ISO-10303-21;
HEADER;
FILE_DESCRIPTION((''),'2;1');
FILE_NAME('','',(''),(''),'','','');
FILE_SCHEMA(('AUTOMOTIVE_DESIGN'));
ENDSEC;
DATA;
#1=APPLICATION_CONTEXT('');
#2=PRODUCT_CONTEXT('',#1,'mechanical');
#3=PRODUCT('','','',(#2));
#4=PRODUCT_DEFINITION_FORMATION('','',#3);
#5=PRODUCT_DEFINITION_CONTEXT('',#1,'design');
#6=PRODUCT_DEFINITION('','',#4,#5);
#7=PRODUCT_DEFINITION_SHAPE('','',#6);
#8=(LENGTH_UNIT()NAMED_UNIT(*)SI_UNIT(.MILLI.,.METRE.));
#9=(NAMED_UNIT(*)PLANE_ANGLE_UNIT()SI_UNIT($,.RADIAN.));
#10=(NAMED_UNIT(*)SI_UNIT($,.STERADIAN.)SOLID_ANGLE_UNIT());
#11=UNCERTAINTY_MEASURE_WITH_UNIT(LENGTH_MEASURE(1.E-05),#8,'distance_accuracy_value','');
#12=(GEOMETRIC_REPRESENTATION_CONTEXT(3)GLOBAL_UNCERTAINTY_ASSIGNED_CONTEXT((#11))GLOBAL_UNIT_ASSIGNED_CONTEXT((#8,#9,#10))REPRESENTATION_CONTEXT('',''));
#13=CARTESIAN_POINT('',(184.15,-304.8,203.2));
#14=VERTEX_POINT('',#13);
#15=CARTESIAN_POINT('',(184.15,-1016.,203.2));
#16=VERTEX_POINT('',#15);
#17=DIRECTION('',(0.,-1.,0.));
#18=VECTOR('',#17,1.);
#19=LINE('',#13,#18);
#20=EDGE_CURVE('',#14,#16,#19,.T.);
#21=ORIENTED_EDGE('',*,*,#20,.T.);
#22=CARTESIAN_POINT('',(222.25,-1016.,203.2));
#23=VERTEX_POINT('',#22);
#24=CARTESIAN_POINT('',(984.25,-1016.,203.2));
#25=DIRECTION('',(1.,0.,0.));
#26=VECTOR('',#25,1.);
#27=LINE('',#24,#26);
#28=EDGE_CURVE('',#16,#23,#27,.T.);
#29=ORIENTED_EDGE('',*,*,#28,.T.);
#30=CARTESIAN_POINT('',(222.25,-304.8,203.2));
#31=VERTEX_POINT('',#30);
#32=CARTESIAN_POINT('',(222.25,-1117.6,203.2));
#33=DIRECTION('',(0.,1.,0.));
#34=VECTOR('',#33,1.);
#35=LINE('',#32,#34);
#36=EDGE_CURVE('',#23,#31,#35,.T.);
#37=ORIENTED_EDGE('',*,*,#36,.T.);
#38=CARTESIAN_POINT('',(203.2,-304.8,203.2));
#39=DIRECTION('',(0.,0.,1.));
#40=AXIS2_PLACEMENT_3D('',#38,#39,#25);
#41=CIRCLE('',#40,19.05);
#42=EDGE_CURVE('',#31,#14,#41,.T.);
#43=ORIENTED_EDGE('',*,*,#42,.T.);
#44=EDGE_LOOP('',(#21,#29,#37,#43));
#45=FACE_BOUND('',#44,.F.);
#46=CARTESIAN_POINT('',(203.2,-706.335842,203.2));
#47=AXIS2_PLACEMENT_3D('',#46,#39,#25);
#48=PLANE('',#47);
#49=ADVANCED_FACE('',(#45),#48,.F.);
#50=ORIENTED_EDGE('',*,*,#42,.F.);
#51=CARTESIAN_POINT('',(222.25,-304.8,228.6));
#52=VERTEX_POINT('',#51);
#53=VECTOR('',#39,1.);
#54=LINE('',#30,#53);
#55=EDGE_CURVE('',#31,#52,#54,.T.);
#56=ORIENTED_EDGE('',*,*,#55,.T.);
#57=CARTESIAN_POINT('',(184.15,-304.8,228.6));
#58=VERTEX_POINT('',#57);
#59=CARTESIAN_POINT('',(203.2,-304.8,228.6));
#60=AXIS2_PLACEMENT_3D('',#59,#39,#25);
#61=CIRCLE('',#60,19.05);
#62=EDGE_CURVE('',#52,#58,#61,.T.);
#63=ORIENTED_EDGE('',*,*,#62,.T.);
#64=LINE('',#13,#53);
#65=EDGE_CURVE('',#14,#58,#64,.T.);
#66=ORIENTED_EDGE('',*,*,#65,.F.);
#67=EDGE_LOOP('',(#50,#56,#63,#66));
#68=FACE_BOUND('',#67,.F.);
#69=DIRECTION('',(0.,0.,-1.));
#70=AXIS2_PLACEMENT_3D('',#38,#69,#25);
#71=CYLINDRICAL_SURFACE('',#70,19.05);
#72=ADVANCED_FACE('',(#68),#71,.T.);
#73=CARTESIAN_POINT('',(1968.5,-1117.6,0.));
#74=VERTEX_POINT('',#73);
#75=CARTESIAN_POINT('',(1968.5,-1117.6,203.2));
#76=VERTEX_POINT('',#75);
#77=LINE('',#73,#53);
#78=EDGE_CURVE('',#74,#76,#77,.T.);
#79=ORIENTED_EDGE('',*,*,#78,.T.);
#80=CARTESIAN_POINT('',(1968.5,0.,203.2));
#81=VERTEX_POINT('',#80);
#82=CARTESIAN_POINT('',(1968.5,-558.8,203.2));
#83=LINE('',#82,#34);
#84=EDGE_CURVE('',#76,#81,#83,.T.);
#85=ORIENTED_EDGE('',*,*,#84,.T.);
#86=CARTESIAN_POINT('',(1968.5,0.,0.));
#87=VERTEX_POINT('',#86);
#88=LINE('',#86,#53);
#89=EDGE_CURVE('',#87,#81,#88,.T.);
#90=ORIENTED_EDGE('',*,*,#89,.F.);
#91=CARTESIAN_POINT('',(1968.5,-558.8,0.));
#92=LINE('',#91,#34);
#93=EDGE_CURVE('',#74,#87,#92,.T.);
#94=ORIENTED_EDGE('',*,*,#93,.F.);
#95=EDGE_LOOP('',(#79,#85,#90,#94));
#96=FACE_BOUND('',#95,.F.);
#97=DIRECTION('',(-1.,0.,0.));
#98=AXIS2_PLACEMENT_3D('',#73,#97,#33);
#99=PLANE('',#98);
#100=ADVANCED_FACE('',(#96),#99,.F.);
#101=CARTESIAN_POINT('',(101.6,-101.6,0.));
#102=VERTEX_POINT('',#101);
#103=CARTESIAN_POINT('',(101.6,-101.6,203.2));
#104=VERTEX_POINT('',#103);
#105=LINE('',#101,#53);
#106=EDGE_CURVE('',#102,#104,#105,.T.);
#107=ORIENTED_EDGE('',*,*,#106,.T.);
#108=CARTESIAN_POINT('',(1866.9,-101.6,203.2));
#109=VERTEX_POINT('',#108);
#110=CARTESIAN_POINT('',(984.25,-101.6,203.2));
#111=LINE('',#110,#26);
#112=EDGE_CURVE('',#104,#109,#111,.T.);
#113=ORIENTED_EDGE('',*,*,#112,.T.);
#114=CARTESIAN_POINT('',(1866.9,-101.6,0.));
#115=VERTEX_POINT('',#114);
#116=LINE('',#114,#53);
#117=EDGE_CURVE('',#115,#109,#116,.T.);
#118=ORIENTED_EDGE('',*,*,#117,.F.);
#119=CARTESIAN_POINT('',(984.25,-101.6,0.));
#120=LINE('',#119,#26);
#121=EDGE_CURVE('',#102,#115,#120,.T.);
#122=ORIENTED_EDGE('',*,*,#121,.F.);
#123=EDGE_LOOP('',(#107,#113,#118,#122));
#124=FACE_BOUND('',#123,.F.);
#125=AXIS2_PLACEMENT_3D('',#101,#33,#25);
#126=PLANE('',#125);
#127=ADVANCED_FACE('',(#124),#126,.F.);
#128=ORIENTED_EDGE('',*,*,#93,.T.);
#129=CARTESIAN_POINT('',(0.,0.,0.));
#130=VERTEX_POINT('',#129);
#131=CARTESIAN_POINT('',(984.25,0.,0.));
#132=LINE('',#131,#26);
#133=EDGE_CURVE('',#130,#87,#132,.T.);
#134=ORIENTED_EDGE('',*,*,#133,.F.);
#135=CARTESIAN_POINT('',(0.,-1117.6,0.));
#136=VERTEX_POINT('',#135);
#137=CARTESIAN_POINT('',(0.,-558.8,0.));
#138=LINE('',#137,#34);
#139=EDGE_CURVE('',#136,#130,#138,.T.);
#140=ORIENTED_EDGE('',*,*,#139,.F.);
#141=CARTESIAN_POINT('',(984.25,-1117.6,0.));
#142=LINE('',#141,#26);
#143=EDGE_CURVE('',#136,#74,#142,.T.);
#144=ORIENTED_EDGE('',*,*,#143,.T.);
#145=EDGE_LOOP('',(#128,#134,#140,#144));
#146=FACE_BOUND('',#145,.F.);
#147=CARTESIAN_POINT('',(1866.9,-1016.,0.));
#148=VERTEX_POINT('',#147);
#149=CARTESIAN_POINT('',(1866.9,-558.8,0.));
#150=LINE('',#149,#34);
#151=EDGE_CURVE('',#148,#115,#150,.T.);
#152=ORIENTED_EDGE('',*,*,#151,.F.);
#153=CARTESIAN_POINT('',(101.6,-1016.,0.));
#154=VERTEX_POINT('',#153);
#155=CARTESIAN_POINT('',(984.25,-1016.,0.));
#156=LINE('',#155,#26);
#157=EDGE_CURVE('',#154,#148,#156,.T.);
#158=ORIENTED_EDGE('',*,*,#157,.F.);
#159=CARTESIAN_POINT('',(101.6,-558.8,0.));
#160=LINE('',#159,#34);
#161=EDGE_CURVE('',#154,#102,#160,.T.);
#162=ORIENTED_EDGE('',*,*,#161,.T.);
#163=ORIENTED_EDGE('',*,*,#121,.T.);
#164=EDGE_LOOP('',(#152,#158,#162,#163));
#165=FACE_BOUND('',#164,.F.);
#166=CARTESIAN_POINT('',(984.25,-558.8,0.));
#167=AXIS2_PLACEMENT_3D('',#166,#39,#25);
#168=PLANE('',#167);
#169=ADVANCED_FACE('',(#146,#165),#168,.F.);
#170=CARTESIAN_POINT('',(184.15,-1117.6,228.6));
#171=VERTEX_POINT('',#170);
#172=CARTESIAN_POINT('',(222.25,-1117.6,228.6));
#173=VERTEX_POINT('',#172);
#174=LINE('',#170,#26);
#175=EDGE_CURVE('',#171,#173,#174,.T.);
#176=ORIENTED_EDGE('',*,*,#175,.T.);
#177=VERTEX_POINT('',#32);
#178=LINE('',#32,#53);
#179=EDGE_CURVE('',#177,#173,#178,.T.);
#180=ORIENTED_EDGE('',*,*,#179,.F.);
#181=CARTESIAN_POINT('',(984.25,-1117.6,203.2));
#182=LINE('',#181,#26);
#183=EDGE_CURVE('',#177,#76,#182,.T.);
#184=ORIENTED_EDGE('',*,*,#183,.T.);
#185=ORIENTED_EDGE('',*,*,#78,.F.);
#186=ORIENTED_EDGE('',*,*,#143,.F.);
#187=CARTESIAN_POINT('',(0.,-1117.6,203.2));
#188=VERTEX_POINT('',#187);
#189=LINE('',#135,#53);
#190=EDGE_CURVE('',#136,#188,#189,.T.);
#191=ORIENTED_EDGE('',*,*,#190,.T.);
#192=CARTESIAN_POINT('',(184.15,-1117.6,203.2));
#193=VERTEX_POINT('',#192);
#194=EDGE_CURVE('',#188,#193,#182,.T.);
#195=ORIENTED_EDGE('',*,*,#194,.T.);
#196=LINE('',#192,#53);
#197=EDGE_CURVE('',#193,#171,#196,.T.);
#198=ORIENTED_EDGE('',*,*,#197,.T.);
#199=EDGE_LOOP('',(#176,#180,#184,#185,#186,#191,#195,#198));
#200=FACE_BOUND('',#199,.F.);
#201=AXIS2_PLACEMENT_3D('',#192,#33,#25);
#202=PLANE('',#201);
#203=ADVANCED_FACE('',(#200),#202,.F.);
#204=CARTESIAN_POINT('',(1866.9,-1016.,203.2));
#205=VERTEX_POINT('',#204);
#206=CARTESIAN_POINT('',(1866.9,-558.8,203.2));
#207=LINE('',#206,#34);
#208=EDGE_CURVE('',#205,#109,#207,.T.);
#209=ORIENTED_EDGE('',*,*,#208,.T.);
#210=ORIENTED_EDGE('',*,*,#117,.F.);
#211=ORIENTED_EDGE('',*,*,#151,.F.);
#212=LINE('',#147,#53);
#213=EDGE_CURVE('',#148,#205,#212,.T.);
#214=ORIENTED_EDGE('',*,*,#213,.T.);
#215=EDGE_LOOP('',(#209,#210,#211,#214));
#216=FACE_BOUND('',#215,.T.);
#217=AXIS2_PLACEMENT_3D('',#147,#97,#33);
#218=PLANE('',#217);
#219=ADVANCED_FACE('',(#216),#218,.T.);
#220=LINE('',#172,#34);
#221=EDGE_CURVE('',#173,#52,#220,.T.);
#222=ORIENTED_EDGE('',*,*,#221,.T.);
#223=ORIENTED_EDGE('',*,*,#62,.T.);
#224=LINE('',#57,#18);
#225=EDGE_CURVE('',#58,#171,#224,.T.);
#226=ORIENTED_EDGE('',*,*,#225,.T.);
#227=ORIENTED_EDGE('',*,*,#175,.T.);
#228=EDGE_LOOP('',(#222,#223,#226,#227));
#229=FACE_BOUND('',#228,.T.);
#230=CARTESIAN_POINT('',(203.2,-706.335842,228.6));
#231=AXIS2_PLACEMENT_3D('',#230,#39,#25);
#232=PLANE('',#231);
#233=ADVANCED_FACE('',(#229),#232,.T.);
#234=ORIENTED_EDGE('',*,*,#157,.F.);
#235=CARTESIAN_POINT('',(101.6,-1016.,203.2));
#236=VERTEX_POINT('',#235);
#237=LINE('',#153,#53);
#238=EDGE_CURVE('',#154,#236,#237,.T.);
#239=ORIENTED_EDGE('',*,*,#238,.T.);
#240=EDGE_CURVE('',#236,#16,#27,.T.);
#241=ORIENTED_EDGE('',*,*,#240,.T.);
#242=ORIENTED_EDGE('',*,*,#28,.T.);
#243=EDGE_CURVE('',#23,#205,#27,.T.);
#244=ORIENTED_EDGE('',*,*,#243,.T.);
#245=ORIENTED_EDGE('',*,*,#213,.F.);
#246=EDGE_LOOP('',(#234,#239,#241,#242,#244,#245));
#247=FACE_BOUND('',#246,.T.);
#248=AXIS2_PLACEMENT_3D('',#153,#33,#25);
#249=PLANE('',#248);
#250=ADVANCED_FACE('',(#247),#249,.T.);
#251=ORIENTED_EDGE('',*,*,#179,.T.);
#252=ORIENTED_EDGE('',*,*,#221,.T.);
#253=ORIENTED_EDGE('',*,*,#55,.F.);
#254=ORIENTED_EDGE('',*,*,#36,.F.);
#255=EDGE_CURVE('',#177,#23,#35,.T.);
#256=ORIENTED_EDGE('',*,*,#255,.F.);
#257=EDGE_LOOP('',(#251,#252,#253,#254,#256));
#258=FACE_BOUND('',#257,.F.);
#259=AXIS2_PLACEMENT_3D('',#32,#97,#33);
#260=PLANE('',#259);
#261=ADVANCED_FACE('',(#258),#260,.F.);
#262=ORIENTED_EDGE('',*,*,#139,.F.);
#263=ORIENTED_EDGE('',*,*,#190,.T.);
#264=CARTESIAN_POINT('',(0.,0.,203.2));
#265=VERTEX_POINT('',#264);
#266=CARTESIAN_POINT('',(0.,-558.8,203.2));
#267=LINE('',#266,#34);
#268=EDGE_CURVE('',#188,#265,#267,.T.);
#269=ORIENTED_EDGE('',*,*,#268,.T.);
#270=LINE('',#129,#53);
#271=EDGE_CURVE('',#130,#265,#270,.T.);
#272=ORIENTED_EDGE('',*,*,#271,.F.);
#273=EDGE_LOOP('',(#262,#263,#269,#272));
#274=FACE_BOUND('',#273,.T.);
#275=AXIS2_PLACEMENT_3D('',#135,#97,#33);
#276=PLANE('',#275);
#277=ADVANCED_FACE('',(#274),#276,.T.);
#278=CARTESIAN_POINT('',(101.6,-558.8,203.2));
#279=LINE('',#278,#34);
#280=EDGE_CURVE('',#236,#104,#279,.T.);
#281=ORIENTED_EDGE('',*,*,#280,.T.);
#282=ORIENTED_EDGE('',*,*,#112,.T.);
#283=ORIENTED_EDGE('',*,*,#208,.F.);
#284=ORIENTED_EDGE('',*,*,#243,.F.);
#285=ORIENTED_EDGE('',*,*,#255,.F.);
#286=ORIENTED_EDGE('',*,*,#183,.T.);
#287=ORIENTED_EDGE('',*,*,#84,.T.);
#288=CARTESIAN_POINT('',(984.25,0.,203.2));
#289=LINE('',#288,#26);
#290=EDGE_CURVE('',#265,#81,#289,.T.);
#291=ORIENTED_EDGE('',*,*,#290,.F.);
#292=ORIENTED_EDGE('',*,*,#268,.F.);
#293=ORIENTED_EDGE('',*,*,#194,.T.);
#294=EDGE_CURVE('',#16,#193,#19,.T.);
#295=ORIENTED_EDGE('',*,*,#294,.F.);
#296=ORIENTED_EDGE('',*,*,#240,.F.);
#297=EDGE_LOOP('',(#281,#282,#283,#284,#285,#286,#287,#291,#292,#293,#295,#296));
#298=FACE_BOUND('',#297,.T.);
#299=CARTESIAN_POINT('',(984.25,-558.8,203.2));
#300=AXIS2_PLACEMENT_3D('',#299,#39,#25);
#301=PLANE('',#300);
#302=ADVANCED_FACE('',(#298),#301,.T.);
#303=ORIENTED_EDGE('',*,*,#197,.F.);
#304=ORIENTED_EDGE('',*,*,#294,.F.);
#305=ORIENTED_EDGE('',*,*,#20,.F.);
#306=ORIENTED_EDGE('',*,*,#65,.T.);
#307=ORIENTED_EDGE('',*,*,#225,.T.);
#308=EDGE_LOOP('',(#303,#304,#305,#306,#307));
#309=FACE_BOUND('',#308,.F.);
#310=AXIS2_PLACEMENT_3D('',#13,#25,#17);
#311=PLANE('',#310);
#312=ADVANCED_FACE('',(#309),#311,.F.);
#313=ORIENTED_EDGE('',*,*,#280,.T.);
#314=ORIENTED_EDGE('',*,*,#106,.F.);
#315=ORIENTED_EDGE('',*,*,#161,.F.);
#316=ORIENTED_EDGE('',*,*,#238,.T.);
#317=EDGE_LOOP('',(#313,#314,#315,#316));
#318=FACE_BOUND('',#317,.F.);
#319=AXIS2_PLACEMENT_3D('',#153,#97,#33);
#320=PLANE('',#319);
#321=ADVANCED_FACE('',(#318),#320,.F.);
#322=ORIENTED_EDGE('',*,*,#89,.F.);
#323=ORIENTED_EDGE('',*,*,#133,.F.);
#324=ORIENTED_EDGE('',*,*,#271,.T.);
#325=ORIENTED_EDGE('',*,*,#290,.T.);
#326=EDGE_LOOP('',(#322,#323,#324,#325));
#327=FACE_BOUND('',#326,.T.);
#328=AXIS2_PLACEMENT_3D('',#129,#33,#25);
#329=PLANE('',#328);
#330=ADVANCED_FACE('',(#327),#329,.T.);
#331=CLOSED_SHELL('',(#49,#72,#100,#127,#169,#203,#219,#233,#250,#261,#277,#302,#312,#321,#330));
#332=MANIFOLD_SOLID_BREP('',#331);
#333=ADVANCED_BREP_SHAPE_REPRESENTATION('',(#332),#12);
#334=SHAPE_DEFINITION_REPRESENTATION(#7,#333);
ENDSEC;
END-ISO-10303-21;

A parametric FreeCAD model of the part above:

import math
import FreeCAD as App
import Part
import Sketcher
from FreeCAD import Vector
Q = App.Units.Quantity


def add_polygon(sketch, points):
    """Adds a closed chain of lines whose ends are joined by coincident constraints."""
    first, n = sketch.GeometryCount, len(points)
    for a, b in zip(points, points[1:] + points[:1]):
        sketch.addGeometry(Part.LineSegment(App.Vector(*a, 0), App.Vector(*b, 0)), False)
    for i in range(n):
        sketch.addConstraint(Sketcher.Constraint("Coincident", first + i, 2, first + (i + 1) % n, 1))

doc = App.newDocument("Part")
body = doc.addObject("PartDesign::Body", "Body")

# Sketch on XY plane
sketch1 = body.newObject("Sketcher::SketchObject", "Sketch")
sketch1.AttachmentSupport = (doc.getObject("XY_Plane"), [""])
sketch1.MapMode = "FlatFace"
add_polygon(sketch1, [(0, 0), (0, -1117.6), (1968.5, -1117.6), (1968.5, 0)])  # lines 0-3
add_polygon(sketch1, [(1866.9, -1016), (101.6, -1016), (101.6, -101.6), (1866.9, -101.6)])  # lines 4-7
sketch1.addConstraint(Sketcher.Constraint("Vertical", 0))
sketch1.addConstraint(Sketcher.Constraint("Horizontal", 1))
sketch1.addConstraint(Sketcher.Constraint("Vertical", 2))
sketch1.addConstraint(Sketcher.Constraint("Horizontal", 3))
sketch1.addConstraint(Sketcher.Constraint("Horizontal", 4))
sketch1.addConstraint(Sketcher.Constraint("Vertical", 5))
sketch1.addConstraint(Sketcher.Constraint("Horizontal", 6))
sketch1.addConstraint(Sketcher.Constraint("Vertical", 7))
sketch1.addConstraint(Sketcher.Constraint("Coincident", 3, 2, -1, 1))
sketch1.addConstraint(Sketcher.Constraint("DistanceY", 0, 2, 0, 1, Q("44 in")))
sketch1.addConstraint(Sketcher.Constraint("DistanceY", 5, 1, 5, 2, Q("36 in")))
sketch1.addConstraint(Sketcher.Constraint("DistanceX", 1, 1, 1, 2, Q("77.5 in")))
sketch1.addConstraint(Sketcher.Constraint("DistanceX", 4, 2, 4, 1, Q("69.5 in")))
sketch1.addConstraint(Sketcher.Constraint("DistanceX", -1, 1, 4, 2, Q("4 in")))
sketch1.addConstraint(Sketcher.Constraint("DistanceY", 4, 2, -1, 1, Q("40 in")))
pad1 = body.newObject("PartDesign::Pad", "Pad")
pad1.Profile = sketch1
pad1.Length = Q("8 in")

# Sketch on XY plane
sketch2 = body.newObject("Sketcher::SketchObject", "Sketch001")
sketch2.AttachmentSupport = (doc.getObject("XY_Plane"), [""])
sketch2.MapMode = "FlatFace"
sketch2.AttachmentOffset = App.Placement(Vector(0, 0, 8 * 25.4), App.Rotation())
sketch2.addGeometry(Part.ArcOfCircle(Part.Circle(Vector(203.2, -304.8, 0), Vector(0, 0, 1), 19.05), math.radians(0), math.radians(180)), False)
sketch2.addGeometry(Part.LineSegment(Vector(184.15, -304.8, 0), Vector(184.15, -1117.6, 0)), False)
sketch2.addGeometry(Part.LineSegment(Vector(184.15, -1117.6, 0), Vector(222.25, -1117.6, 0)), False)
sketch2.addGeometry(Part.LineSegment(Vector(222.25, -1117.6, 0), Vector(222.25, -304.8, 0)), False)
sketch2.addConstraint(Sketcher.Constraint("Tangent", 0, 2, 1, 1))
sketch2.addConstraint(Sketcher.Constraint("Coincident", 1, 2, 2, 1))
sketch2.addConstraint(Sketcher.Constraint("Coincident", 2, 2, 3, 1))
sketch2.addConstraint(Sketcher.Constraint("Tangent", 3, 2, 0, 1))
sketch2.addConstraint(Sketcher.Constraint("Vertical", 1))
sketch2.addConstraint(Sketcher.Constraint("Horizontal", 2))
sketch2.addConstraint(Sketcher.Constraint("Vertical", 3))
sketch2.addConstraint(Sketcher.Constraint("DistanceY", 1, 2, 1, 1, Q("32 in")))
sketch2.addConstraint(Sketcher.Constraint("Radius", 0, Q("0.75 in")))
sketch2.addConstraint(Sketcher.Constraint("DistanceX", -1, 1, 0, 3, Q("8 in")))
sketch2.addConstraint(Sketcher.Constraint("DistanceY", 0, 3, -1, 1, Q("12 in")))
pad2 = body.newObject("PartDesign::Pad", "Pad001")
pad2.Profile = sketch2
pad2.Length = Q("1 in")

doc.recompute()
